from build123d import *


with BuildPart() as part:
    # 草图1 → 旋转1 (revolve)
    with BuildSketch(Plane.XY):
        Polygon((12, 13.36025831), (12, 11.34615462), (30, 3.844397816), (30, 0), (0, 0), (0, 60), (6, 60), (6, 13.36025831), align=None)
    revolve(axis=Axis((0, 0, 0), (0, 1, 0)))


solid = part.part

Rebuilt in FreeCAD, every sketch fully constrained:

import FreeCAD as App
import Part
import Sketcher
from FreeCAD import Vector
Q = App.Units.Quantity

doc = App.newDocument("Part")
body = doc.addObject("PartDesign::Body", "Body")

# Sketch on XY plane
sketch1 = body.newObject("Sketcher::SketchObject", "Sketch")
sketch1.AttachmentSupport = (doc.getObject("XY_Plane"), [""])
sketch1.MapMode = "FlatFace"
sketch1.addGeometry([
    Part.LineSegment(Vector(12, 11.3, 0), Vector(12, 13.4, 0)),  # 0
    Part.LineSegment(Vector(12, 13.4, 0), Vector(6, 13.4, 0)),  # 1
    Part.LineSegment(Vector(6, 13.4, 0), Vector(6, 60, 0)),  # 2
    Part.LineSegment(Vector(6, 60, 0), Vector(0, 60, 0)),  # 3
    Part.LineSegment(Vector(0, 60, 0), Vector(0, 0, 0)),  # 4
    Part.LineSegment(Vector(0, 0, 0), Vector(30, 0, 0)),  # 5
    Part.LineSegment(Vector(30, 0, 0), Vector(30, 3.8, 0)),  # 6
    Part.LineSegment(Vector(30, 3.8, 0), Vector(12, 11.3, 0)),  # 7
], False)
sketch1.addConstraint([
    Sketcher.Constraint("Coincident", 0, 2, 1, 1),
    Sketcher.Constraint("Coincident", 1, 2, 2, 1),
    Sketcher.Constraint("Coincident", 2, 2, 3, 1),
    Sketcher.Constraint("Coincident", 3, 2, 4, 1),
    Sketcher.Constraint("Coincident", 4, 2, 5, 1),
    Sketcher.Constraint("Coincident", 5, 2, 6, 1),
    Sketcher.Constraint("Coincident", 6, 2, 7, 1),
    Sketcher.Constraint("Coincident", 7, 2, 0, 1),
    Sketcher.Constraint("Vertical", 0),
    Sketcher.Constraint("Horizontal", 1),
    Sketcher.Constraint("Vertical", 2),
    Sketcher.Constraint("Horizontal", 3),
    Sketcher.Constraint("Vertical", 4),
    Sketcher.Constraint("Horizontal", 5),
    Sketcher.Constraint("Vertical", 6),
    Sketcher.Constraint("Coincident", 4, 2, -1, 1),
    Sketcher.Constraint("Equal", 1, 3),
    Sketcher.Constraint("DistanceX", 1, 2, 1, 1, Q("6 mm")),
    Sketcher.Constraint("DistanceX", 5, 1, 5, 2, Q("30 mm")),
    Sketcher.Constraint("DistanceY", 4, 2, 4, 1, Q("60 mm")),
    Sketcher.Constraint("DistanceY", 2, 1, 2, 2, Q("46.639742 mm")),
    Sketcher.Constraint("DistanceY", 0, 1, 0, 2, Q("2.014104 mm")),
    Sketcher.Constraint("DistanceY", 6, 1, 6, 2, Q("3.844398 mm")),
])
revolution = body.newObject("PartDesign::Revolution", "Revolution")
revolution.Profile = sketch1
revolution.ReferenceAxis = (sketch1, ["V_Axis"])
revolution.Angle = 360

doc.recompute()
